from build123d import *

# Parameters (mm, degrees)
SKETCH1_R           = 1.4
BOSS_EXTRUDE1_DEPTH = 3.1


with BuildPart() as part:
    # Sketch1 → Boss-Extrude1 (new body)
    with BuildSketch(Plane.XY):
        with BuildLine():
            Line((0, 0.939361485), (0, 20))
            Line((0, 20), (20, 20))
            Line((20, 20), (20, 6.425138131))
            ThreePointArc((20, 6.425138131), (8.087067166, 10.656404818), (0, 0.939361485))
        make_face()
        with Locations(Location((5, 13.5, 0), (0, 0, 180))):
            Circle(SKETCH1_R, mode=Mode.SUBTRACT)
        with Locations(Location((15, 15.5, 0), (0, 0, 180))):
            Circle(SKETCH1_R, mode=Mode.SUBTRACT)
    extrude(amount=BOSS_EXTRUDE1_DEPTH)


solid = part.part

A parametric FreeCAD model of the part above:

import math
import FreeCAD as App
import Part
import Sketcher

V = App.Vector
Q = App.Units.Quantity

doc = App.newDocument("Part")
body = doc.addObject("PartDesign::Body", "Body")

sketch1 = body.newObject("Sketcher::SketchObject", "Sketch")
sketch1.AttachmentSupport = (doc.getObject("XY_Plane"), [""])
sketch1.MapMode = "FlatFace"
sketch1.addGeometry([
    Part.LineSegment(V(0, 20, 0), V(0, 0.9, 0)),
    Part.ArcOfCircle(Part.Circle(V(11, 0, 0), V(0, 0, 1), 11.1), math.radians(36), math.radians(175)),
    Part.LineSegment(V(20, 6.4, 0), V(20, 20, 0)),
    Part.LineSegment(V(20, 20, 0), V(0, 20, 0)),
    Part.Circle(V(5, 13.5, 0), V(0, 0, 1), 1.4),
    Part.Circle(V(15, 15.5, 0), V(0, 0, 1), 1.4),
], False)
sketch1.addConstraint([
    Sketcher.Constraint("Coincident", 0, 2, 1, 2),
    Sketcher.Constraint("Coincident", 1, 1, 2, 1),
    Sketcher.Constraint("Coincident", 2, 2, 3, 1),
    Sketcher.Constraint("Coincident", 3, 2, 0, 1),
    Sketcher.Constraint("Vertical", 0),
    Sketcher.Constraint("Vertical", 2),
    Sketcher.Constraint("Horizontal", 3),
    Sketcher.Constraint("Equal", 4, 5),
    Sketcher.Constraint("PointOnObject", 1, 3, -1),
    Sketcher.Constraint("PointOnObject", 0, 2, -2),
    Sketcher.Constraint("Diameter", 4, Q("2.8 mm")),
    Sketcher.Constraint("DistanceX", 3, 2, 3, 1, Q("20 mm")),
    Sketcher.Constraint("Radius", 1, Q("11.05 mm")),
    Sketcher.Constraint("DistanceX", -1, 1, 4, 3, Q("5 mm")),
    Sketcher.Constraint("DistanceX", -1, 1, 5, 3, Q("15 mm")),
    Sketcher.Constraint("DistanceY", -1, 1, 2, 2, Q("20 mm")),
    Sketcher.Constraint("DistanceY", 4, 3, 5, 3, Q("2 mm")),
    Sketcher.Constraint("DistanceY", -1, 1, 4, 3, Q("13.5 mm")),
    Sketcher.Constraint("DistanceX", -1, 1, 1, 3, Q("11.01 mm")),
])
pad1 = body.newObject("PartDesign::Pad", "Pad")
pad1.Profile = sketch1
pad1.Length = 3.1

doc.recompute()
